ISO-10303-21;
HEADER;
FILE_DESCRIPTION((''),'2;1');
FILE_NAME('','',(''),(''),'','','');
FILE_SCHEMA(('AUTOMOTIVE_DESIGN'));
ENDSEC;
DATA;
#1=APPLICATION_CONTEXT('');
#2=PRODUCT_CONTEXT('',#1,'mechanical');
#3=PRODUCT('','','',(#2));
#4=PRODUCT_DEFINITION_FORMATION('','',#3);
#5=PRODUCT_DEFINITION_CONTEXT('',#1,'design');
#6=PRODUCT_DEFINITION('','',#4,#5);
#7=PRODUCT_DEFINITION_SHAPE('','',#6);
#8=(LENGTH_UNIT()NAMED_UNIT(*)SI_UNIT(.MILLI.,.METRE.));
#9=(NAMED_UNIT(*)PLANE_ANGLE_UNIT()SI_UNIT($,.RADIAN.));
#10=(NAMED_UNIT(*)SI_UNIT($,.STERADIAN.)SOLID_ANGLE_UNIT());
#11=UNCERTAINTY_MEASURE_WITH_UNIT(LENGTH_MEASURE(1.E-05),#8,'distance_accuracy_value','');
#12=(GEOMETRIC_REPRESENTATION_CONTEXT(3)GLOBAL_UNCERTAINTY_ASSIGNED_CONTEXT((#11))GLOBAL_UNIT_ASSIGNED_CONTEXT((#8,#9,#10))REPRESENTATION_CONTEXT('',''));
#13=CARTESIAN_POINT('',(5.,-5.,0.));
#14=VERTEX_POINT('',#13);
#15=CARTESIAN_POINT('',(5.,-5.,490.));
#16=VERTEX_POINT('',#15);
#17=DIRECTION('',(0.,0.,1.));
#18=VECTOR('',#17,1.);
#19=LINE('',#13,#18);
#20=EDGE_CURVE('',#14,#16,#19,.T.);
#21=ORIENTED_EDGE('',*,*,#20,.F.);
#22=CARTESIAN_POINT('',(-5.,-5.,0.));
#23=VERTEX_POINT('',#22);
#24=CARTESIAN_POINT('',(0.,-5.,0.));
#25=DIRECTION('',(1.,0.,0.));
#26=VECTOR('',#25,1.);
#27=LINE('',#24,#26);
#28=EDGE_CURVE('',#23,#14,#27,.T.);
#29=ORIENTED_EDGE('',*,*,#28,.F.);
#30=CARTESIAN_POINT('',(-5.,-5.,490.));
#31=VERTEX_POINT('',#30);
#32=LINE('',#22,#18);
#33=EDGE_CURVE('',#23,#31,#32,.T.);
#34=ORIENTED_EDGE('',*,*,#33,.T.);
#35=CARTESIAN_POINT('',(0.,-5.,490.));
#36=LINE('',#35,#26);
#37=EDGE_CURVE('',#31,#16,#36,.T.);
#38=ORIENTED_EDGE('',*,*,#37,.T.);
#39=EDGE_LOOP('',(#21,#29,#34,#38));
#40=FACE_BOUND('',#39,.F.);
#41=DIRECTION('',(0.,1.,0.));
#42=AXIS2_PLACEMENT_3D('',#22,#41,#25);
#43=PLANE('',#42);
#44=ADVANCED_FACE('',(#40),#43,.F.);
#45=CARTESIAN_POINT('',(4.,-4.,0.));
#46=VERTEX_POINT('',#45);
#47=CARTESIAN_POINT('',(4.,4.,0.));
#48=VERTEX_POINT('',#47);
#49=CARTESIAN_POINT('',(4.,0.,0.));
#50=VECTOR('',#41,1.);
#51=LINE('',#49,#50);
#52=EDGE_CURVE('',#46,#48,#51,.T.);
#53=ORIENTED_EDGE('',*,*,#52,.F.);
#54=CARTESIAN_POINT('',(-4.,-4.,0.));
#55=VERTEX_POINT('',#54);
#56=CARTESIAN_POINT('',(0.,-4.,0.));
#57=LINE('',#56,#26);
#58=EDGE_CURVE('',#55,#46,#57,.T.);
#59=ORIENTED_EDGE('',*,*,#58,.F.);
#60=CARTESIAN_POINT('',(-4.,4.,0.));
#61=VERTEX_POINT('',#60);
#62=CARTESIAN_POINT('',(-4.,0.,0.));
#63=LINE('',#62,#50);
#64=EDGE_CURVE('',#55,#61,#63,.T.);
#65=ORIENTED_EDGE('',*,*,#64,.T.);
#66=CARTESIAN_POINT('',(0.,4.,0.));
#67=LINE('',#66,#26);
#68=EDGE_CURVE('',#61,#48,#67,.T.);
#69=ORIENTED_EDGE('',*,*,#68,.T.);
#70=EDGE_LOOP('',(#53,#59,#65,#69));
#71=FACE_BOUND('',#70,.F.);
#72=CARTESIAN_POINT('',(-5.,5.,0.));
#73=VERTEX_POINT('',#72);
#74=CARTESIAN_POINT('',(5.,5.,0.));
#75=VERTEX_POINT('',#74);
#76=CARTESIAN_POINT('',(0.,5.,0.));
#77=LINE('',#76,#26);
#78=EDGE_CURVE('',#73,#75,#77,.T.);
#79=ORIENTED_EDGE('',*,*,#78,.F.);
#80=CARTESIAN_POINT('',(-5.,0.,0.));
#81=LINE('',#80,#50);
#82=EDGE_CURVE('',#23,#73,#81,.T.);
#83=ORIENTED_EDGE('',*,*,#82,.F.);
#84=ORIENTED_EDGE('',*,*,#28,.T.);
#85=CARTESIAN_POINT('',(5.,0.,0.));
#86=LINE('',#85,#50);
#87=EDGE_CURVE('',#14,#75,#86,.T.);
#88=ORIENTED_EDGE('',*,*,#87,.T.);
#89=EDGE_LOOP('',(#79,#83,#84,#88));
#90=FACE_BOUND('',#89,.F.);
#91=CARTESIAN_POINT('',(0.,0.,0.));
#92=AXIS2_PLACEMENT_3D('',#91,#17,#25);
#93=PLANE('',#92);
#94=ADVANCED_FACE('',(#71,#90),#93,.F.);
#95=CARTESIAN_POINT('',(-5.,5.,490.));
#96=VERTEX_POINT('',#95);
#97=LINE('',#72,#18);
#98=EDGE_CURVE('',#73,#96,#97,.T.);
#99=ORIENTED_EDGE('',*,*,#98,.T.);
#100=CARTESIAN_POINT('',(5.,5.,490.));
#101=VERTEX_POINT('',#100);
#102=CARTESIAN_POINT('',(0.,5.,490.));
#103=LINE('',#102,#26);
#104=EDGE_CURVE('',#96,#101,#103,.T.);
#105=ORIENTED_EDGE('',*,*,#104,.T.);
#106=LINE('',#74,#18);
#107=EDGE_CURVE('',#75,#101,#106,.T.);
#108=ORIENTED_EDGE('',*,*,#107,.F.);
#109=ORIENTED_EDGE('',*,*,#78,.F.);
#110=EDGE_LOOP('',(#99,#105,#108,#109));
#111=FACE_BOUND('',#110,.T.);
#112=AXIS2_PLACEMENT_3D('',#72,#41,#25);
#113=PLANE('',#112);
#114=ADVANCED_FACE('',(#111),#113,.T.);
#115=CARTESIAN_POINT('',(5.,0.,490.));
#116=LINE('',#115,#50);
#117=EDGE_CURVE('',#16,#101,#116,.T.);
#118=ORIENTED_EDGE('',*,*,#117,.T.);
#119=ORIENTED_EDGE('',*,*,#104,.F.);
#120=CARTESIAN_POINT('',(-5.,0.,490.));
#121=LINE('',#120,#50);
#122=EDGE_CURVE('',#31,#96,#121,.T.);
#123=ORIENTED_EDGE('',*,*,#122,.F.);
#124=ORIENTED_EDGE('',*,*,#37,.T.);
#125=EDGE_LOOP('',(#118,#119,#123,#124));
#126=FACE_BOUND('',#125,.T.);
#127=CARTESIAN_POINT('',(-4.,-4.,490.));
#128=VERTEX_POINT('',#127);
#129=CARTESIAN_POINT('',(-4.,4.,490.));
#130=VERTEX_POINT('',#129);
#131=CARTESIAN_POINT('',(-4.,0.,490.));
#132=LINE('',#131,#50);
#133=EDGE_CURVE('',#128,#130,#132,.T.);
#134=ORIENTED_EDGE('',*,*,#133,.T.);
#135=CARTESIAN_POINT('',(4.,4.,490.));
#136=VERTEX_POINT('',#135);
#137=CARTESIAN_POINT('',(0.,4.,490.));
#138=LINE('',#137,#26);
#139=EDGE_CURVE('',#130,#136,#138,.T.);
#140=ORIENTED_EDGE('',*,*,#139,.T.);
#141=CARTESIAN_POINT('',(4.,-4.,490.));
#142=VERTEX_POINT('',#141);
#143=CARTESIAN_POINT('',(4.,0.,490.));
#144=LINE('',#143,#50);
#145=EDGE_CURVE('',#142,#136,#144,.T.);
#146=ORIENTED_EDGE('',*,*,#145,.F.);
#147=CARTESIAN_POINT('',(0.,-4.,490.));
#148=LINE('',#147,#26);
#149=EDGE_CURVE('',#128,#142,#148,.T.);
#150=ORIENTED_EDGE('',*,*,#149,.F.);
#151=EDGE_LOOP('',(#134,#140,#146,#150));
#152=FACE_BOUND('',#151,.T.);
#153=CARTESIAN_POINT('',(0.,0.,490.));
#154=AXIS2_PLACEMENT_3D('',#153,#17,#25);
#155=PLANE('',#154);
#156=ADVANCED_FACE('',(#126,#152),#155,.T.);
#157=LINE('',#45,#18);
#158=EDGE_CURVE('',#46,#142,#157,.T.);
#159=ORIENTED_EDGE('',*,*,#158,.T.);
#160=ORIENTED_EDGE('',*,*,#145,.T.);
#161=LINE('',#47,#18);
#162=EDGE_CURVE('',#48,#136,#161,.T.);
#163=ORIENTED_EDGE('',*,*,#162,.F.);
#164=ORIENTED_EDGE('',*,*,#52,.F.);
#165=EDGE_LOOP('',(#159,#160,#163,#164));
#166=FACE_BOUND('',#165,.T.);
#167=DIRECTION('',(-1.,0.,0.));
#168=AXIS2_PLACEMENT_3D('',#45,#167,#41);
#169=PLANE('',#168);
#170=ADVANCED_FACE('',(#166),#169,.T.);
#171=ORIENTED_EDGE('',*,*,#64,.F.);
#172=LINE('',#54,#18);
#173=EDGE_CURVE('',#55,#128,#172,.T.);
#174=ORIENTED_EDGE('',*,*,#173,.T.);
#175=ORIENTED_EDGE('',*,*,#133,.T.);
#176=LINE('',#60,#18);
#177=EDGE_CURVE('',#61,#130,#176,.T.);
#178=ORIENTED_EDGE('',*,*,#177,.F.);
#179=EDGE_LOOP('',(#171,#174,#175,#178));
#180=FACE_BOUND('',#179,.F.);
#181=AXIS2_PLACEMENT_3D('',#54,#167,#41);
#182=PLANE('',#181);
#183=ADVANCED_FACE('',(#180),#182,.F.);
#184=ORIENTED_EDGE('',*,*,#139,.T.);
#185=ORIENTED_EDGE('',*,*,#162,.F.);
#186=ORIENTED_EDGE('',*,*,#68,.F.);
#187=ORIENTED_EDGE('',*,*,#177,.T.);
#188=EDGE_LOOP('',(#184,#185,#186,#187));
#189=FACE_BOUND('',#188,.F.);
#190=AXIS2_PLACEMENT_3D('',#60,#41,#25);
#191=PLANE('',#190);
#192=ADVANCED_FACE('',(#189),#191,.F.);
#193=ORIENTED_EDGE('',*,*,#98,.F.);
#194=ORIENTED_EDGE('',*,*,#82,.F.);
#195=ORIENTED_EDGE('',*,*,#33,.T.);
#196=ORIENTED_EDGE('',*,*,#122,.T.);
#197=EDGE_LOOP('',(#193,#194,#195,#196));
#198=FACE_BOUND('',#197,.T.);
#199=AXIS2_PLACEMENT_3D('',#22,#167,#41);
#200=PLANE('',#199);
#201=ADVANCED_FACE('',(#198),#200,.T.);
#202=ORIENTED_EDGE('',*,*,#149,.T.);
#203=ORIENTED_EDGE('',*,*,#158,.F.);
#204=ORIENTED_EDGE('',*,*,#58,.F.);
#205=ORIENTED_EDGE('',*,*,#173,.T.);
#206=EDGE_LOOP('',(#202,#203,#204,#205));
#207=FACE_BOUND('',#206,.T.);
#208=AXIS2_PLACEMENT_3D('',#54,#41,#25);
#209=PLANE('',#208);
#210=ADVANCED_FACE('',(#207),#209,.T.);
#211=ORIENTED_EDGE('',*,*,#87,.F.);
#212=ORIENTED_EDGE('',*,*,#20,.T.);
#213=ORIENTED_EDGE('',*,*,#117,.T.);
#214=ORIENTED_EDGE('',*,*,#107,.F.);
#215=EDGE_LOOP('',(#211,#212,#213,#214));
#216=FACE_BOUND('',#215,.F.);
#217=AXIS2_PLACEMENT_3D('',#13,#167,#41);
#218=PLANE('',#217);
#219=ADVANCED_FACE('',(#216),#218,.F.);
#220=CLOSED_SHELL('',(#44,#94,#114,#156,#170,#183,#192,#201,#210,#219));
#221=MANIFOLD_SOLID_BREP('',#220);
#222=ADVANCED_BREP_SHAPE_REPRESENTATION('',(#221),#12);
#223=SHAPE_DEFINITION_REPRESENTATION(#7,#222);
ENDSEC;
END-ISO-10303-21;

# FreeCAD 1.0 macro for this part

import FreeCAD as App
import Part
import Sketcher
from FreeCAD import Vector


def add_polygon(sketch, points):
    """Adds a closed chain of lines whose ends are joined by coincident constraints."""
    first, n = sketch.GeometryCount, len(points)
    for a, b in zip(points, points[1:] + points[:1]):
        sketch.addGeometry(Part.LineSegment(App.Vector(*a, 0), App.Vector(*b, 0)), False)
    for i in range(n):
        sketch.addConstraint(Sketcher.Constraint("Coincident", first + i, 2, first + (i + 1) % n, 1))

doc = App.newDocument("Part")
body = doc.addObject("PartDesign::Body", "Body")

# Sketch on XY plane
sketch1 = doc.addObject("Sketcher::SketchObject", "Sketch")
body.addObject(sketch1)
sketch1.AttachmentSupport = (doc.XY_Plane, [""])
sketch1.MapMode = "FlatFace"
add_polygon(sketch1, [(-5, 5), (-5, -5), (5, -5), (5, 5)])  # lines 0-3
add_polygon(sketch1, [(4, -4), (-4, -4), (-4, 4), (4, 4)])  # lines 4-7
sketch1.addConstraint(Sketcher.Constraint("Vertical", 0))
sketch1.addConstraint(Sketcher.Constraint("Horizontal", 1))
sketch1.addConstraint(Sketcher.Constraint("Vertical", 2))
sketch1.addConstraint(Sketcher.Constraint("Horizontal", 3))
sketch1.addConstraint(Sketcher.Constraint("Horizontal", 4))
sketch1.addConstraint(Sketcher.Constraint("Vertical", 5))
sketch1.addConstraint(Sketcher.Constraint("Horizontal", 6))
sketch1.addConstraint(Sketcher.Constraint("Vertical", 7))
sketch1.addConstraint(Sketcher.Constraint("Symmetric", 0, 2, 2, 2, -1, 1))
sketch1.addConstraint(Sketcher.Constraint("Symmetric", 4, 2, 6, 2, -1, 1))
sketch1.addConstraint(Sketcher.Constraint("Equal", 3, 0))
sketch1.addConstraint(Sketcher.Constraint("Equal", 6, 5))
sketch1.addConstraint(Sketcher.Constraint("DistanceX", 1, 1, 1, 2, 10.0))
sketch1.addConstraint(Sketcher.Constraint("DistanceX", 4, 2, 4, 1, 8.0))
pad1 = doc.addObject("PartDesign::Pad", "Pad")
body.addObject(pad1)
pad1.Profile = sketch1
pad1.Length = 490

doc.recompute()
